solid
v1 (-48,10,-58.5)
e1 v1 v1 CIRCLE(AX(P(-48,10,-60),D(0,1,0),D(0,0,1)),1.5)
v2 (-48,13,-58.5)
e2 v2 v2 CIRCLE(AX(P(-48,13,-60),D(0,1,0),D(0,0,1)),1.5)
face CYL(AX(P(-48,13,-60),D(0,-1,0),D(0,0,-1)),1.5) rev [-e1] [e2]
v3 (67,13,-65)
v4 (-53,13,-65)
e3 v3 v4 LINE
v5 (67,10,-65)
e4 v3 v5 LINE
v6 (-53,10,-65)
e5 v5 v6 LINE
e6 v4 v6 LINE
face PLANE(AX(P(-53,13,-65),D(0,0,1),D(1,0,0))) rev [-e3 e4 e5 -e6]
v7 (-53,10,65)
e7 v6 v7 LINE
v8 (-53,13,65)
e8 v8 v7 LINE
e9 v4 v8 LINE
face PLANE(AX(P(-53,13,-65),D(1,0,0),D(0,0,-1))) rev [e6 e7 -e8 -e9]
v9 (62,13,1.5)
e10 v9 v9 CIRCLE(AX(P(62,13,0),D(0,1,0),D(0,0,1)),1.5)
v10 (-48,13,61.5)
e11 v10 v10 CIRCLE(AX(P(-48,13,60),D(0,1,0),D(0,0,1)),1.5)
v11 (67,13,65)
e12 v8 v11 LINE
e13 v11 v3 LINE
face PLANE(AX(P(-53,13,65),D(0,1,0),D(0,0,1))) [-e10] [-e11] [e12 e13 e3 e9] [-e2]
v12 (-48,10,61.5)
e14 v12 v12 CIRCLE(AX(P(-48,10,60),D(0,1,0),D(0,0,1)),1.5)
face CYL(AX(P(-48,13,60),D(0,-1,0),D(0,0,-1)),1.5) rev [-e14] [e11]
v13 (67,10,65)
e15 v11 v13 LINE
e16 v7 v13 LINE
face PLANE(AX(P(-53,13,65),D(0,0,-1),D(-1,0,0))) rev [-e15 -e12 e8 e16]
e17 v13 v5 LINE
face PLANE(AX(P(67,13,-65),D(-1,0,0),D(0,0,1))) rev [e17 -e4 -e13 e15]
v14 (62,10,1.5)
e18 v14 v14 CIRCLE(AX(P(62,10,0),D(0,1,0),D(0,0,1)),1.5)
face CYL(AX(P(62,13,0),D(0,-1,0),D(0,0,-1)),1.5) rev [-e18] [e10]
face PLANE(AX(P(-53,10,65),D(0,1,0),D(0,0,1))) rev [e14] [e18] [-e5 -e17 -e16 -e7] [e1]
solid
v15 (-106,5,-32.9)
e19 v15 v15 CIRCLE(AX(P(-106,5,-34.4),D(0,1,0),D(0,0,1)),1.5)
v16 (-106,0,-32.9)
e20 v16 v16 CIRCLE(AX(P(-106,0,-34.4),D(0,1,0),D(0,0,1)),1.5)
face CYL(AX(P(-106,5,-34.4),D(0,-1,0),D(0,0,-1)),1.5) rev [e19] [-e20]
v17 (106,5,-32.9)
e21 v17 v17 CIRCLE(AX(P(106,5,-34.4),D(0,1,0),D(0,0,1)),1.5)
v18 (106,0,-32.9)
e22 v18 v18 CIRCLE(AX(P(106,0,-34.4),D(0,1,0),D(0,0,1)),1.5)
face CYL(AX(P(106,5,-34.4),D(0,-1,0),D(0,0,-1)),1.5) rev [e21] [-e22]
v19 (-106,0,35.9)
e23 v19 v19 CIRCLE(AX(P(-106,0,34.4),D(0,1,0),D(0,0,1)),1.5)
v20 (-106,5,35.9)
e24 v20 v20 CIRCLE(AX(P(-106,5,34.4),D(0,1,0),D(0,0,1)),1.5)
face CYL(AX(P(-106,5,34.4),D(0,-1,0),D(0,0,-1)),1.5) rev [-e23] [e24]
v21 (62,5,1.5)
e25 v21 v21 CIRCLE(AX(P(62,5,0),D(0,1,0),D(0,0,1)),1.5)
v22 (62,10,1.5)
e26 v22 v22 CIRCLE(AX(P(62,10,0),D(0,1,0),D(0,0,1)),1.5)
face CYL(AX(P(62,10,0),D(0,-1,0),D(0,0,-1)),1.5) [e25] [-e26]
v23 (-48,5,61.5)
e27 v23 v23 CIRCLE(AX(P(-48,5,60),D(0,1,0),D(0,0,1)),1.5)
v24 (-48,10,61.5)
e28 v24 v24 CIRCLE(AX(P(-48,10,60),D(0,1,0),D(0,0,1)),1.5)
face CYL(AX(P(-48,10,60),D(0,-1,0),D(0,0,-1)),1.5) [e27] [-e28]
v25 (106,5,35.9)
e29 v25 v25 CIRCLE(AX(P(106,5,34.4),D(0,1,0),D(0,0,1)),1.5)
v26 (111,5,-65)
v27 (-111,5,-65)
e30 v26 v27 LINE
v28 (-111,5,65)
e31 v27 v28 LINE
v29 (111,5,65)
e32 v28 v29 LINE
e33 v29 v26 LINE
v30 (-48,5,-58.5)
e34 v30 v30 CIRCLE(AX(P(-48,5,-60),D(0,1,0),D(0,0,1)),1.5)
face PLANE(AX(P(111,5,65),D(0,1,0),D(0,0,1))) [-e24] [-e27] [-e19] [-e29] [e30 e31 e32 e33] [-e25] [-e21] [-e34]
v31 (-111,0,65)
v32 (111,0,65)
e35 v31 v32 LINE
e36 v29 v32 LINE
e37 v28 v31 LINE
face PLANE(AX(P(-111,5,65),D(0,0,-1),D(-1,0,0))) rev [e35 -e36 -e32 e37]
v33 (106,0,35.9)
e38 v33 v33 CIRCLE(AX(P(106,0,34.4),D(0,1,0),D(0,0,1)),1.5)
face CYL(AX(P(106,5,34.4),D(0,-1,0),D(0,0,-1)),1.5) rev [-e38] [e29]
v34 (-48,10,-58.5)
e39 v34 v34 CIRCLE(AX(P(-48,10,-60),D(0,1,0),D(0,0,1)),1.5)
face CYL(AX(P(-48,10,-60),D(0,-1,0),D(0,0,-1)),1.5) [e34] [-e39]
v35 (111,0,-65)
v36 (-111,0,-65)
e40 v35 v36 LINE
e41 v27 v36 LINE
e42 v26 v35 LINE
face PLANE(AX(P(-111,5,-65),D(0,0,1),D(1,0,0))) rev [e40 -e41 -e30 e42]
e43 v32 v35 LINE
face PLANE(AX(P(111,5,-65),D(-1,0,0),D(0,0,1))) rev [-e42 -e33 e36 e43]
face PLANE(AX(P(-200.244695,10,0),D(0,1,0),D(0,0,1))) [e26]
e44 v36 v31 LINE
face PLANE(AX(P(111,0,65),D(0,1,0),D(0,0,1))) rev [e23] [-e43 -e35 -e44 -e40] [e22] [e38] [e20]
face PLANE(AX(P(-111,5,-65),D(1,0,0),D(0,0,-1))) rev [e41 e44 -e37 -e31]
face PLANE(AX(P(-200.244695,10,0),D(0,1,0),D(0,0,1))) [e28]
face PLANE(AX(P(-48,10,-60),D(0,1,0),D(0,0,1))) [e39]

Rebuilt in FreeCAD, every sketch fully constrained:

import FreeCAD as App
import Part
import Sketcher
from FreeCAD import Vector
Q = App.Units.Quantity


def add_polygon(sketch, points):
    """Adds a closed chain of lines whose ends are joined by coincident constraints."""
    first, n = sketch.GeometryCount, len(points)
    for a, b in zip(points, points[1:] + points[:1]):
        sketch.addGeometry(Part.LineSegment(App.Vector(*a, 0), App.Vector(*b, 0)), False)
    for i in range(n):
        sketch.addConstraint(Sketcher.Constraint("Coincident", first + i, 2, first + (i + 1) % n, 1))

doc = App.newDocument("Part")
params = doc.addObject("Spreadsheet::Sheet", "Params")
for row, (alias, value) in enumerate([
    ("sketch1_diameter", "3 mm"),
    ("sketch1_width", "222 mm"),
    ("sketch1_height", "130 mm"),
    ("pad1_length", "5 mm"),
    ("sketch2_diameter", "3 mm"),
    ("pad2_length", "5 mm"),
    ("sketch3_diameter", "3 mm"),
    ("sketch3_width", "120 mm"),
    ("sketch3_height", "130 mm"),
    ("pad3_length", "3 mm"),
], start=1):
    params.set(f"A{row}", alias)
    params.set(f"B{row}", "=" + value)
    params.setAlias(f"B{row}", alias)

body = doc.addObject("PartDesign::Body", "Body")

# Sketch on XZ plane
sketch1 = doc.addObject("Sketcher::SketchObject", "Sketch")
body.addObject(sketch1)
sketch1.AttachmentSupport = (doc.XZ_Plane, [""])
sketch1.MapMode = "FlatFace"
add_polygon(sketch1, [(-111, -65), (-111, 65), (111, 65), (111, -65)])  # lines 0-3
sketch1.addGeometry(Part.Circle(Vector(-106, 34.4, 0), Vector(0, 0, 1), 1.5), False)  # 4
sketch1.addGeometry(Part.Circle(Vector(106, 34.4, 0), Vector(0, 0, 1), 1.5), False)  # 5
sketch1.addGeometry(Part.Circle(Vector(-106, -34.4, 0), Vector(0, 0, 1), 1.5), False)  # 6
sketch1.addGeometry(Part.Circle(Vector(106, -34.4, 0), Vector(0, 0, 1), 1.5), False)  # 7
sketch1.addConstraint(Sketcher.Constraint("Vertical", 0))
sketch1.addConstraint(Sketcher.Constraint("Horizontal", 1))
sketch1.addConstraint(Sketcher.Constraint("Vertical", 2))
sketch1.addConstraint(Sketcher.Constraint("Horizontal", 3))
sketch1.addConstraint(Sketcher.Constraint("Equal", 4, 5))
sketch1.addConstraint(Sketcher.Constraint("Equal", 5, 6))
sketch1.addConstraint(Sketcher.Constraint("Equal", 6, 7))
sketch1.addConstraint(Sketcher.Constraint("Symmetric", 5, 3, 6, 3, -1, 1))
sketch1.addConstraint(Sketcher.Constraint("Symmetric", 4, 3, 7, 3, -1, 1))
sketch1.addConstraint(Sketcher.Constraint("Symmetric", 0, 2, 2, 2, -1, 1))
sketch1.addConstraint(Sketcher.Constraint("Symmetric", 4, 3, 5, 3, -2))
sketch1.addConstraint(Sketcher.Constraint("Diameter", 4, Q("3 mm")))
sketch1.addConstraint(Sketcher.Constraint("DistanceX", 1, 1, 1, 2, Q("222 mm")))
sketch1.addConstraint(Sketcher.Constraint("DistanceY", 0, 1, 0, 2, Q("130 mm")))
sketch1.addConstraint(Sketcher.Constraint("DistanceX", 4, 3, -1, 1, Q("106 mm")))
sketch1.addConstraint(Sketcher.Constraint("DistanceY", -1, 1, 4, 3, Q("34.4 mm")))
sketch1.setExpression("Constraints[15]", "Params.sketch1_diameter")
sketch1.setExpression("Constraints[16]", "Params.sketch1_width")
sketch1.setExpression("Constraints[17]", "Params.sketch1_height")
pad1 = doc.addObject("PartDesign::Pad", "Pad")
body.addObject(pad1)
pad1.Profile = sketch1
pad1.setExpression("Length", "Params.pad1_length")
pad1.Reversed = True

# Sketch on XZ plane
sketch2 = doc.addObject("Sketcher::SketchObject", "Sketch001")
body.addObject(sketch2)
sketch2.AttachmentSupport = (doc.XZ_Plane, [""])
sketch2.MapMode = "FlatFace"
sketch2.AttachmentOffset = App.Placement(Vector(0, 0, -5), App.Rotation())
sketch2.addGeometry(Part.Circle(Vector(-48, 60, 0), Vector(0, 0, 1), 1.5), False)
sketch2.addGeometry(Part.Circle(Vector(62, 0, 0), Vector(0, 0, 1), 1.5), False)
sketch2.addGeometry(Part.Circle(Vector(-48, -60, 0), Vector(0, 0, 1), 1.5), False)
sketch2.addConstraint(Sketcher.Constraint("Equal", 0, 1))
sketch2.addConstraint(Sketcher.Constraint("Equal", 1, 2))
sketch2.addConstraint(Sketcher.Constraint("Symmetric", 0, 3, 2, 3, -1))
sketch2.addConstraint(Sketcher.Constraint("PointOnObject", 1, 3, -1))
sketch2.addConstraint(Sketcher.Constraint("Diameter", 0, Q("3 mm")))
sketch2.addConstraint(Sketcher.Constraint("DistanceX", 0, 3, -1, 1, Q("48 mm")))
sketch2.addConstraint(Sketcher.Constraint("DistanceY", -1, 1, 0, 3, Q("60 mm")))
sketch2.addConstraint(Sketcher.Constraint("DistanceX", -1, 1, 1, 3, Q("62 mm")))
sketch2.setExpression("Constraints[4]", "Params.sketch2_diameter")
pad2 = doc.addObject("PartDesign::Pad", "Pad001")
body.addObject(pad2)
pad2.Profile = sketch2
pad2.setExpression("Length", "Params.pad2_length")
pad2.Reversed = True
body2 = doc.addObject("PartDesign::Body", "Body001")

# Sketch on XZ plane
sketch3 = doc.addObject("Sketcher::SketchObject", "Sketch002")
body2.addObject(sketch3)
sketch3.AttachmentSupport = (doc.getObject("XZ_Plane001"), [""])
sketch3.MapMode = "FlatFace"
sketch3.AttachmentOffset = App.Placement(Vector(0, 0, -10), App.Rotation())
add_polygon(sketch3, [(-53, -65), (-53, 65), (67, 65), (67, -65)])  # lines 0-3
sketch3.addGeometry(Part.Circle(Vector(-48, 60, 0), Vector(0, 0, 1), 1.5), False)  # 4
sketch3.addGeometry(Part.Circle(Vector(-48, -60, 0), Vector(0, 0, 1), 1.5), False)  # 5
sketch3.addGeometry(Part.Circle(Vector(62, 0, 0), Vector(0, 0, 1), 1.5), False)  # 6
sketch3.addConstraint(Sketcher.Constraint("Vertical", 0))
sketch3.addConstraint(Sketcher.Constraint("Horizontal", 1))
sketch3.addConstraint(Sketcher.Constraint("Vertical", 2))
sketch3.addConstraint(Sketcher.Constraint("Horizontal", 3))
sketch3.addConstraint(Sketcher.Constraint("Equal", 4, 5))
sketch3.addConstraint(Sketcher.Constraint("Equal", 5, 6))
sketch3.addConstraint(Sketcher.Constraint("Symmetric", 4, 3, 5, 3, -1))
sketch3.addConstraint(Sketcher.Constraint("PointOnObject", 6, 3, -1))
sketch3.addConstraint(Sketcher.Constraint("Diameter", 4, Q("3 mm")))
sketch3.addConstraint(Sketcher.Constraint("DistanceX", 1, 1, 1, 2, Q("120 mm")))
sketch3.addConstraint(Sketcher.Constraint("DistanceY", 0, 1, 0, 2, Q("130 mm")))
sketch3.addConstraint(Sketcher.Constraint("DistanceX", 4, 3, -1, 1, Q("48 mm")))
sketch3.addConstraint(Sketcher.Constraint("DistanceY", -1, 1, 4, 3, Q("60 mm")))
sketch3.addConstraint(Sketcher.Constraint("DistanceX", -1, 1, 6, 3, Q("62 mm")))
sketch3.addConstraint(Sketcher.Constraint("DistanceX", 0, 2, -1, 1, Q("53 mm")))
sketch3.addConstraint(Sketcher.Constraint("DistanceY", -1, 1, 0, 2, Q("65 mm")))
sketch3.setExpression("Constraints[12]", "Params.sketch3_diameter")
sketch3.setExpression("Constraints[13]", "Params.sketch3_width")
sketch3.setExpression("Constraints[14]", "Params.sketch3_height")
pad3 = doc.addObject("PartDesign::Pad", "Pad002")
body2.addObject(pad3)
pad3.Profile = sketch3
pad3.setExpression("Length", "Params.pad3_length")
pad3.Reversed = True

doc.recompute()
